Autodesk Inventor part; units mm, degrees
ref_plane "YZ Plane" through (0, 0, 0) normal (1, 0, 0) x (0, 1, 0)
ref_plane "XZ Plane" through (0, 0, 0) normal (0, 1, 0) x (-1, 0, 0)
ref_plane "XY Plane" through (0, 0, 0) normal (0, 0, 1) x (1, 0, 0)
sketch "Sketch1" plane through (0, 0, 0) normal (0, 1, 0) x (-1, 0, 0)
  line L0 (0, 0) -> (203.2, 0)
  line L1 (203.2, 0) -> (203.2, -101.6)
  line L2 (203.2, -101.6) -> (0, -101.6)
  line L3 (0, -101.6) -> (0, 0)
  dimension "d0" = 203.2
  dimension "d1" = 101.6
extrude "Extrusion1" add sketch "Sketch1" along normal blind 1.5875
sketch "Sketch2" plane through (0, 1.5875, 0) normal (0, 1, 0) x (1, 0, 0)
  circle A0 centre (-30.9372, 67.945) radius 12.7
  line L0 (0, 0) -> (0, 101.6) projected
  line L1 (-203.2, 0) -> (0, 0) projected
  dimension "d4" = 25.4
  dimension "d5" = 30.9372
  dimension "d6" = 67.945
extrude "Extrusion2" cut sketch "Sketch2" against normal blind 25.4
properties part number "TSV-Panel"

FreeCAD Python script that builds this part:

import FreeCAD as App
import Part
import Sketcher

V = App.Vector
Q = App.Units.Quantity

doc = App.newDocument("Part")
body = doc.addObject("PartDesign::Body", "Body")

# Sketch on XZ plane
sketch1 = doc.addObject("Sketcher::SketchObject", "Sketch")
body.addObject(sketch1)
sketch1.AttachmentSupport = (doc.XZ_Plane, [""])
sketch1.MapMode = "FlatFace"
sketch1.addGeometry([
    Part.LineSegment(V(-203, 0, 0), V(0, 0, 0)),
    Part.LineSegment(V(0, 0, 0), V(0, -102, 0)),
    Part.LineSegment(V(0, -102, 0), V(-203, -102, 0)),
    Part.LineSegment(V(-203, -102, 0), V(-203, 0, 0)),
], False)
sketch1.addConstraint([
    Sketcher.Constraint("Coincident", 0, 2, 1, 1),
    Sketcher.Constraint("Coincident", 1, 2, 2, 1),
    Sketcher.Constraint("Coincident", 2, 2, 3, 1),
    Sketcher.Constraint("Coincident", 3, 2, 0, 1),
    Sketcher.Constraint("Horizontal", 0),
    Sketcher.Constraint("Vertical", 1),
    Sketcher.Constraint("Horizontal", 2),
    Sketcher.Constraint("Vertical", 3),
    Sketcher.Constraint("Coincident", 0, 2, -1, 1),
    Sketcher.Constraint("DistanceX", 0, 1, 0, 2, Q("8 in")),
    Sketcher.Constraint("DistanceY", 1, 2, 1, 1, Q("4 in")),
])
pad1 = doc.addObject("PartDesign::Pad", "Pad")
body.addObject(pad1)
pad1.Profile = sketch1
pad1.Length = Q("0.0625 in")
pad1.Reversed = True

# Sketch on XZ plane
sketch2 = doc.addObject("Sketcher::SketchObject", "Sketch001")
body.addObject(sketch2)
sketch2.AttachmentSupport = (doc.XZ_Plane, [""])
sketch2.MapMode = "FlatFace"
sketch2.AttachmentOffset = App.Placement(V(0, 0, -0.0625 * 25.4), App.Rotation())
sketch2.addGeometry(Part.Circle(V(-31, -68, 0), V(0, 0, 1), 13), False)
sketch2.addConstraint([
    Sketcher.Constraint("Diameter", 0, Q("1 in")),
    Sketcher.Constraint("DistanceX", 0, 3, -1, 1, Q("1.218 in")),
    Sketcher.Constraint("DistanceY", 0, 3, -1, 1, Q("2.675 in")),
])
pocket1 = doc.addObject("PartDesign::Pocket", "Pocket")
body.addObject(pocket1)
pocket1.Profile = sketch2
pocket1.Length = Q("1 in")
pocket1.Reversed = True

doc.recompute()
